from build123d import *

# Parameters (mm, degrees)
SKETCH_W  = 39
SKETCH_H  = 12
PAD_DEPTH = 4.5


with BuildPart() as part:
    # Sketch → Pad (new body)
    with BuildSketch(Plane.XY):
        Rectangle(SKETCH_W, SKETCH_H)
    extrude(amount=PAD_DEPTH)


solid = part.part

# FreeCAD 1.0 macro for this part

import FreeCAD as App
import Part
import Sketcher

V = App.Vector
Q = App.Units.Quantity

doc = App.newDocument("Part")
params = doc.addObject("Spreadsheet::Sheet", "Params")
for row, (alias, value) in enumerate([
    ("sketch1_width", "39 mm"),
    ("sketch1_height", "12 mm"),
    ("pad1_length", "4.5 mm"),
], start=1):
    params.set(f"A{row}", alias)
    params.set(f"B{row}", "=" + value)
    params.setAlias(f"B{row}", alias)

body = doc.addObject("PartDesign::Body", "Body")

sketch1 = body.newObject("Sketcher::SketchObject", "Sketch")
sketch1.AttachmentSupport = (doc.getObject("XY_Plane"), [""])
sketch1.MapMode = "FlatFace"
sketch1.addGeometry([
    Part.LineSegment(V(-20, 6, 0), V(-20, -6, 0)),
    Part.LineSegment(V(-20, -6, 0), V(20, -6, 0)),
    Part.LineSegment(V(20, -6, 0), V(20, 6, 0)),
    Part.LineSegment(V(20, 6, 0), V(-20, 6, 0)),
], False)
sketch1.addConstraint([
    Sketcher.Constraint("Coincident", 0, 2, 1, 1),
    Sketcher.Constraint("Coincident", 1, 2, 2, 1),
    Sketcher.Constraint("Coincident", 2, 2, 3, 1),
    Sketcher.Constraint("Coincident", 3, 2, 0, 1),
    Sketcher.Constraint("Vertical", 0),
    Sketcher.Constraint("Horizontal", 1),
    Sketcher.Constraint("Vertical", 2),
    Sketcher.Constraint("Horizontal", 3),
    Sketcher.Constraint("Symmetric", 0, 2, 2, 2, -1, 1),
    Sketcher.Constraint("DistanceX", 1, 1, 1, 2, Q("39 mm")),
    Sketcher.Constraint("DistanceY", 0, 2, 0, 1, Q("12 mm")),
])
sketch1.setExpression("Constraints[9]", "Params.sketch1_width")
sketch1.setExpression("Constraints[10]", "Params.sketch1_height")
pad1 = body.newObject("PartDesign::Pad", "Pad")
pad1.Profile = sketch1
pad1.setExpression("Length", "Params.pad1_length")

doc.recompute()
